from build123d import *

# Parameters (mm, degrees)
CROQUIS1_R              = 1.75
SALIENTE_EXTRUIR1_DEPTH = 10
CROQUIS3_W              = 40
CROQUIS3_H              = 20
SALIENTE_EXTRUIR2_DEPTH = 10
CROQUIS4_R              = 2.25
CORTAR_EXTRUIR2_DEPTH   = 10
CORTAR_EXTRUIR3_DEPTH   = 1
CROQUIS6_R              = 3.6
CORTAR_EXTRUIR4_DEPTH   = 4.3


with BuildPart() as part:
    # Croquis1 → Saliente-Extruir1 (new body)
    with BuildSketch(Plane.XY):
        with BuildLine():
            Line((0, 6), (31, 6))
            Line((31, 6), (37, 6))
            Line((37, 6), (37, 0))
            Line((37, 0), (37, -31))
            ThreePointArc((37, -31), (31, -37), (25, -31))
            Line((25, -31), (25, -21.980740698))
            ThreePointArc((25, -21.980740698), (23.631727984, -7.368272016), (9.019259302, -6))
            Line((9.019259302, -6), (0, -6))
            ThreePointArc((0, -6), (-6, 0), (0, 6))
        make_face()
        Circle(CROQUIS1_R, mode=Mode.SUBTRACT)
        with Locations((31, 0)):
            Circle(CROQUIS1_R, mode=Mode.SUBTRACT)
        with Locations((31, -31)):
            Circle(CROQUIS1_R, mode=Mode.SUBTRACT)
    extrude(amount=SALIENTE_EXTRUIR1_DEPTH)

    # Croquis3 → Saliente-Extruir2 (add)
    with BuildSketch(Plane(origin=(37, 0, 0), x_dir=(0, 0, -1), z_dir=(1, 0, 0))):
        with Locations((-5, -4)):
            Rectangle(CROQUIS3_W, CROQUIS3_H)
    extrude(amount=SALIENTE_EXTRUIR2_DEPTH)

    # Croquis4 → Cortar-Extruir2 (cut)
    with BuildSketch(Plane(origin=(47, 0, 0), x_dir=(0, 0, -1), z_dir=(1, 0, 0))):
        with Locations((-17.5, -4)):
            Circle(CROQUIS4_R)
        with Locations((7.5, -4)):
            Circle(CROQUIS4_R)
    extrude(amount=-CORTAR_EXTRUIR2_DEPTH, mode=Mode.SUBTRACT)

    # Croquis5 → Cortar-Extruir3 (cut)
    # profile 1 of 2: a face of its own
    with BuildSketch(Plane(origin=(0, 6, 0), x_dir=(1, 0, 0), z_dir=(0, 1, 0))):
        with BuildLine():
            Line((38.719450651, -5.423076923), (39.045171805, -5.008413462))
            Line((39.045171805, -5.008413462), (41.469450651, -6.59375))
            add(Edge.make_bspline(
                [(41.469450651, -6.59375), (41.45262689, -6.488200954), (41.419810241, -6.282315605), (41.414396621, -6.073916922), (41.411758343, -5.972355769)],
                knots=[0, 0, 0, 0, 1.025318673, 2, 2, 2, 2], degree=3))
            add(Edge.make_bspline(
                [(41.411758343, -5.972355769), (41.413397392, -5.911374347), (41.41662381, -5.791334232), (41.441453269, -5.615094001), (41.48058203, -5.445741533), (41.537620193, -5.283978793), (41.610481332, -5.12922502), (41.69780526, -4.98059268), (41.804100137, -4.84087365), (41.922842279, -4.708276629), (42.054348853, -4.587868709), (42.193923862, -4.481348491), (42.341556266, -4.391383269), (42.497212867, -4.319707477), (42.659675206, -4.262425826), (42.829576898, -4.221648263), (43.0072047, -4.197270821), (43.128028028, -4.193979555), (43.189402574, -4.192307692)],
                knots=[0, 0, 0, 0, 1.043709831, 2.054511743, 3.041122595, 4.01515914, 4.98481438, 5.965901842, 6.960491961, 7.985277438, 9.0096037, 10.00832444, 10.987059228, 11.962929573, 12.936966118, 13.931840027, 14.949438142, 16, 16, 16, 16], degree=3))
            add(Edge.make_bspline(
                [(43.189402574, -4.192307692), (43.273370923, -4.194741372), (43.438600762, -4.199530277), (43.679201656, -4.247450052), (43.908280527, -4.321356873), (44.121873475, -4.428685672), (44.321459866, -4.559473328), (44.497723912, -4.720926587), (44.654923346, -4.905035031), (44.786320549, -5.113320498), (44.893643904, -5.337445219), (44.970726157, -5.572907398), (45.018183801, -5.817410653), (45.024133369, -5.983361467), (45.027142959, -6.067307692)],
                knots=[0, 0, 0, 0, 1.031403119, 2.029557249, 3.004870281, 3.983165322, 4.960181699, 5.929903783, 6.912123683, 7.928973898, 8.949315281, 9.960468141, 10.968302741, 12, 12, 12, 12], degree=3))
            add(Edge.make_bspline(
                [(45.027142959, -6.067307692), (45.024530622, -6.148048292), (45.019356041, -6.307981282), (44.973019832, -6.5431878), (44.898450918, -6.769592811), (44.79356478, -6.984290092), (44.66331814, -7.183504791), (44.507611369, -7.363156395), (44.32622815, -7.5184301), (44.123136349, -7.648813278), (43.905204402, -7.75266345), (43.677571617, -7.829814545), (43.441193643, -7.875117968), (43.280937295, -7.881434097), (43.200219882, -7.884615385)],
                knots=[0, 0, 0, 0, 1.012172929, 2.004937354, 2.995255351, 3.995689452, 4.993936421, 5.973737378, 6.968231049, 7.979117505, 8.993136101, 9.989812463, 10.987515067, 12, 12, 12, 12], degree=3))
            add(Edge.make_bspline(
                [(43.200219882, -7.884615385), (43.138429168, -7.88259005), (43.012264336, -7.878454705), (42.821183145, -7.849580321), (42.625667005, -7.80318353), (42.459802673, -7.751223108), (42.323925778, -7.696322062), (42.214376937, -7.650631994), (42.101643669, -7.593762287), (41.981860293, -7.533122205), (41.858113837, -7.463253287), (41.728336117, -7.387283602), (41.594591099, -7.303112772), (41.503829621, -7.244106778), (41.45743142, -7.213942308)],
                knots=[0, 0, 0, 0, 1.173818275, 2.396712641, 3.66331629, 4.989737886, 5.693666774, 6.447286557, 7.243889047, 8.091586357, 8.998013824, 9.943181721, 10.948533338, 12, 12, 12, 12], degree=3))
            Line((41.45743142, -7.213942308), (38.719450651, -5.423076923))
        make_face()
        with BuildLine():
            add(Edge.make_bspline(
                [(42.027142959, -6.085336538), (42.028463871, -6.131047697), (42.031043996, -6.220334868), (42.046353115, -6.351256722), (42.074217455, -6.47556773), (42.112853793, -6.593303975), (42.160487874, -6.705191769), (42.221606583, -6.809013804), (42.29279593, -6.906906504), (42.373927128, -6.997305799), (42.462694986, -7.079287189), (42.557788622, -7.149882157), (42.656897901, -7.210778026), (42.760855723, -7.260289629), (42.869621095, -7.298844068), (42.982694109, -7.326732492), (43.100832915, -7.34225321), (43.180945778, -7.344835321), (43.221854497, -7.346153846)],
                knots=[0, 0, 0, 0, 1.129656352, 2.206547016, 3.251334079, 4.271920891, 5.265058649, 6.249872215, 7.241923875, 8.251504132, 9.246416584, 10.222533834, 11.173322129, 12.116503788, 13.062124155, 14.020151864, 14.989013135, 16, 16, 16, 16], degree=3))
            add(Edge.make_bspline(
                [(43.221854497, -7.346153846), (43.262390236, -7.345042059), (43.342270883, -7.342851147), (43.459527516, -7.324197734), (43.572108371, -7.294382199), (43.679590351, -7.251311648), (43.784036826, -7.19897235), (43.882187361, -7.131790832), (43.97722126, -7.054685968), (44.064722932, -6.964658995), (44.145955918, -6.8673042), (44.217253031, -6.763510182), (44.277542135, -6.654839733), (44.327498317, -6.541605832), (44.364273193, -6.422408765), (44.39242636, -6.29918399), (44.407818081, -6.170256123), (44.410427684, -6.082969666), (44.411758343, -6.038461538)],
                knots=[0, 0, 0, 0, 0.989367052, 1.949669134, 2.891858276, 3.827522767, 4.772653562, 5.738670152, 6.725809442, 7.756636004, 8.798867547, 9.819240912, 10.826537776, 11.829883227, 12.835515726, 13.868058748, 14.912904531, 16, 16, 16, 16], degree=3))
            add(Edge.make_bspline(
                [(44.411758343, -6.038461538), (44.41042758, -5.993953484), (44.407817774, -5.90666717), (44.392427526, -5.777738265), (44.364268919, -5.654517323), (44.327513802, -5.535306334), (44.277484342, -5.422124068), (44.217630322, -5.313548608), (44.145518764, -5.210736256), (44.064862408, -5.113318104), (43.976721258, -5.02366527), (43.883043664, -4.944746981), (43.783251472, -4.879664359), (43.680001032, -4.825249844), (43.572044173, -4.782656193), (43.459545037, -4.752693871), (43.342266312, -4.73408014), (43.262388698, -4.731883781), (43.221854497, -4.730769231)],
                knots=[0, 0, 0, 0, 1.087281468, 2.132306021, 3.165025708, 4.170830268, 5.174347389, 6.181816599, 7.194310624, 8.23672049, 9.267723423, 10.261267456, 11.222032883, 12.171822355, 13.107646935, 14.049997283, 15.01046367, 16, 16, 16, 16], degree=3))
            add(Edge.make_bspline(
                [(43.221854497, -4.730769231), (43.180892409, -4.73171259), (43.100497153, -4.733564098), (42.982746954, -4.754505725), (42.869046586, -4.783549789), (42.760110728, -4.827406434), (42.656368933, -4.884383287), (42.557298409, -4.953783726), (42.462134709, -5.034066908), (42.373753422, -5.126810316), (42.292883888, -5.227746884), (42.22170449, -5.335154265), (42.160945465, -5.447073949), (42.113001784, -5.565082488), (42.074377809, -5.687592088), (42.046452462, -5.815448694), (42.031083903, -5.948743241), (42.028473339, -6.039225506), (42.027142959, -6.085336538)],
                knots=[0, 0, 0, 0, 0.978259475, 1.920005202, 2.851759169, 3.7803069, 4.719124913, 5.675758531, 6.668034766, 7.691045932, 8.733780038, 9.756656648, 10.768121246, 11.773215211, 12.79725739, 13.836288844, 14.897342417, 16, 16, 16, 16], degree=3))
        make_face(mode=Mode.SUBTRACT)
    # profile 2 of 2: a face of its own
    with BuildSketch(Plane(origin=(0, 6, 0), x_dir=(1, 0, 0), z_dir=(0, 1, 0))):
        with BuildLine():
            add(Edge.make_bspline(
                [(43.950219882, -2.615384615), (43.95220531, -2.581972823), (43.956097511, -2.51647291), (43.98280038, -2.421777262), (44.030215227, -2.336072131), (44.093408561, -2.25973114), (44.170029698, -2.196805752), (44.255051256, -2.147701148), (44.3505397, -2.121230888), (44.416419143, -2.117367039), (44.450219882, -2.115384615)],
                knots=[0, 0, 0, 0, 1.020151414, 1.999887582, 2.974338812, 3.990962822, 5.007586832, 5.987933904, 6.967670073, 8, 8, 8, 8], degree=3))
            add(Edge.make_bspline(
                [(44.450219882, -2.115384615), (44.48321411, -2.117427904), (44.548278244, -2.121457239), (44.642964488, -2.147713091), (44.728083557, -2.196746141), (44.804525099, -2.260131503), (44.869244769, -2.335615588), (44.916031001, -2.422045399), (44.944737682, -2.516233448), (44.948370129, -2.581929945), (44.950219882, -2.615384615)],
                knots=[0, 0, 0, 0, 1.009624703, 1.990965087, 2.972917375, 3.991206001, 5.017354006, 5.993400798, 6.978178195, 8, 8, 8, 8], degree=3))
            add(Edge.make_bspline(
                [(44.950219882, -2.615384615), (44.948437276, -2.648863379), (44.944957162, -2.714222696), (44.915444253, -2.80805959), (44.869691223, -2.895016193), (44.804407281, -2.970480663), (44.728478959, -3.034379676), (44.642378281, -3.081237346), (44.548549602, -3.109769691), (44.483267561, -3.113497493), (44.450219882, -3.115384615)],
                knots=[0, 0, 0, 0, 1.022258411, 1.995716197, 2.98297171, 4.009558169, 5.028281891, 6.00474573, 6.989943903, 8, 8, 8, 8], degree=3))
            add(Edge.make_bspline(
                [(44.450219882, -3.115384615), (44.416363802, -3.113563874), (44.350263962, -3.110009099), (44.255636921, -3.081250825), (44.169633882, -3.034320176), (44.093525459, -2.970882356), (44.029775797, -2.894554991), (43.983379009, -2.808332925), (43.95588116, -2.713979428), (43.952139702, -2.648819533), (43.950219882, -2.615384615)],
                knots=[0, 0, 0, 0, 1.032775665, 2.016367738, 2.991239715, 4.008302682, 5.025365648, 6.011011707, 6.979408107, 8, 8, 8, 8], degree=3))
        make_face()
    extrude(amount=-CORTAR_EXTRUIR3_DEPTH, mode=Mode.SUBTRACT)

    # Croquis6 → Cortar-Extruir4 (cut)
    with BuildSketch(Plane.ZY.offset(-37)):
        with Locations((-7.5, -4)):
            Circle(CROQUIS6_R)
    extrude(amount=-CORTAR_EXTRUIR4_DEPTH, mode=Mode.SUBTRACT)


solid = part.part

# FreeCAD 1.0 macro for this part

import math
import FreeCAD as App
import Part
import Sketcher


def add_polygon(sketch, points):
    """Adds a closed chain of lines whose ends are joined by coincident constraints."""
    first, n = sketch.GeometryCount, len(points)
    for a, b in zip(points, points[1:] + points[:1]):
        sketch.addGeometry(Part.LineSegment(App.Vector(*a, 0), App.Vector(*b, 0)), False)
    for i in range(n):
        sketch.addConstraint(Sketcher.Constraint("Coincident", first + i, 2, first + (i + 1) % n, 1))

doc = App.newDocument("Part")
body = doc.addObject("PartDesign::Body", "Body")

# Sketch on XY plane
sketch1 = body.newObject("Sketcher::SketchObject", "Sketch")
sketch1.AttachmentSupport = (doc.getObject("XY_Plane"), [""])
sketch1.MapMode = "FlatFace"
sketch1.addGeometry([
    Part.LineSegment(App.Vector(37, 6, 0), App.Vector(0, 6, 0)),  # 0
    Part.ArcOfCircle(Part.Circle(App.Vector(0, 0, 0), App.Vector(0, 0, 1), 6), math.radians(90), math.radians(270)),  # 1
    Part.LineSegment(App.Vector(0, -6, 0), App.Vector(9, -6, 0)),  # 2
    Part.ArcOfCircle(Part.Circle(App.Vector(15.5, -15.5, 0), App.Vector(0, 0, 1), 11.5), math.radians(-34), math.radians(124)),  # 3
    Part.LineSegment(App.Vector(25, -22, 0), App.Vector(25, -31, 0)),  # 4
    Part.ArcOfCircle(Part.Circle(App.Vector(31, -31, 0), App.Vector(0, 0, 1), 6), math.radians(180), math.radians(360)),  # 5
    Part.LineSegment(App.Vector(37, -31, 0), App.Vector(37, 6, 0)),  # 6
    Part.Circle(App.Vector(31, -31, 0), App.Vector(0, 0, 1), 1.8),  # 7
    Part.Circle(App.Vector(31, 0, 0), App.Vector(0, 0, 1), 1.8),  # 8
    Part.Circle(App.Vector(0, 0, 0), App.Vector(0, 0, 1), 1.8),  # 9
], False)
sketch1.addConstraint([
    Sketcher.Constraint("Tangent", 0, 2, 1, 1),
    Sketcher.Constraint("Tangent", 1, 2, 2, 1),
    Sketcher.Constraint("Coincident", 2, 2, 3, 2),
    Sketcher.Constraint("Coincident", 3, 1, 4, 1),
    Sketcher.Constraint("Tangent", 4, 2, 5, 1),
    Sketcher.Constraint("Tangent", 5, 2, 6, 1),
    Sketcher.Constraint("Coincident", 6, 2, 0, 1),
    Sketcher.Constraint("Horizontal", 0),
    Sketcher.Constraint("Horizontal", 2),
    Sketcher.Constraint("Vertical", 4),
    Sketcher.Constraint("Vertical", 6),
    Sketcher.Constraint("Coincident", 1, 3, -1, 1),
    Sketcher.Constraint("Coincident", 9, 3, -1, 1),
    Sketcher.Constraint("Coincident", 7, 3, 5, 3),
    Sketcher.Constraint("Equal", 1, 5),
    Sketcher.Constraint("Equal", 7, 8),
    Sketcher.Constraint("Equal", 8, 9),
    Sketcher.Constraint("PointOnObject", 8, 3, -1),
    Sketcher.Constraint("Vertical", 7, 3, 8, 3),
    Sketcher.Constraint("Equal", 2, 4),
    Sketcher.Constraint("Equal", 0, 6),
    Sketcher.Constraint("Radius", 1, 6.0),
    Sketcher.Constraint("Diameter", 7, 3.5),
    Sketcher.Constraint("Radius", 3, 11.5),
    Sketcher.Constraint("DistanceX", 0, 2, 0, 1, 37.0),
    Sketcher.Constraint("DistanceX", -1, 1, 3, 3, 15.5),
])
pad1 = body.newObject("PartDesign::Pad", "Pad")
pad1.Profile = sketch1
pad1.Length = 10

# Sketch on YZ plane
sketch2 = body.newObject("Sketcher::SketchObject", "Sketch001")
sketch2.AttachmentSupport = (doc.getObject("YZ_Plane"), [""])
sketch2.MapMode = "FlatFace"
sketch2.AttachmentOffset = App.Placement(App.Vector(0, 0, 37), App.Rotation())
add_polygon(sketch2, [(6, 25), (-14, 25), (-14, -15), (6, -15)])  # lines 0-3
sketch2.addConstraint([
    Sketcher.Constraint("Horizontal", 0),
    Sketcher.Constraint("Vertical", 1),
    Sketcher.Constraint("Horizontal", 2),
    Sketcher.Constraint("Vertical", 3),
    Sketcher.Constraint("DistanceX", 0, 2, 0, 1, 20.0),
    Sketcher.Constraint("DistanceY", 1, 2, 1, 1, 40.0),
    Sketcher.Constraint("DistanceX", 0, 2, -1, 1, 14.0),
    Sketcher.Constraint("DistanceY", -1, 1, 0, 2, 25.0),
])
pad2 = body.newObject("PartDesign::Pad", "Pad001")
pad2.Profile = sketch2
pad2.Length = 10

# Sketch on YZ plane
sketch3 = body.newObject("Sketcher::SketchObject", "Sketch002")
sketch3.AttachmentSupport = (doc.getObject("YZ_Plane"), [""])
sketch3.MapMode = "FlatFace"
sketch3.AttachmentOffset = App.Placement(App.Vector(0, 0, 47), App.Rotation())
sketch3.addGeometry([
    Part.Circle(App.Vector(-4, 17.5, 0), App.Vector(0, 0, 1), 2.2),
    Part.Circle(App.Vector(-4, -7.5, 0), App.Vector(0, 0, 1), 2.2),
], False)
sketch3.addConstraint([
    Sketcher.Constraint("Equal", 0, 1),
    Sketcher.Constraint("Vertical", 0, 3, 1, 3),
    Sketcher.Constraint("Diameter", 0, 4.5),
    Sketcher.Constraint("DistanceX", 0, 3, -1, 1, 4.0),
    Sketcher.Constraint("DistanceY", 1, 3, 0, 3, 25.0),
    Sketcher.Constraint("DistanceY", -1, 1, 0, 3, 17.5),
])
pocket1 = body.newObject("PartDesign::Pocket", "Pocket")
pocket1.Profile = sketch3
pocket1.Length = 10

# Sketch on XZ plane
sketch4 = body.newObject("Sketcher::SketchObject", "Sketch003")
sketch4.AttachmentSupport = (doc.getObject("XZ_Plane"), [""])
sketch4.MapMode = "FlatFace"
sketch4.AttachmentOffset = App.Placement(App.Vector(0, 0, -6), App.Rotation())
sketch4.addGeometry([
    Part.LineSegment(App.Vector(39.045172, 5.008413, 0), App.Vector(38.719451, 5.423077, 0)),  # 0
    Part.LineSegment(App.Vector(38.719451, 5.423077, 0), App.Vector(41.457431, 7.213942, 0)),  # 1
    Part.BSplineCurve([App.Vector(43.20022, 7.884615, 0), App.Vector(43.138429, 7.88259, 0), App.Vector(43.012264, 7.878455, 0), App.Vector(42.821183, 7.84958, 0), App.Vector(42.625667, 7.803184, 0), App.Vector(42.459803, 7.751223, 0), App.Vector(42.323926, 7.696322, 0), App.Vector(42.214377, 7.650632, 0), App.Vector(42.101644, 7.593762, 0), App.Vector(41.98186, 7.533122, 0), App.Vector(41.858114, 7.463253, 0), App.Vector(41.728336, 7.387284, 0), App.Vector(41.594591, 7.303113, 0), App.Vector(41.50383, 7.244107, 0), App.Vector(41.457431, 7.213942, 0)], [4, 1, 1, 1, 1, 1, 1, 1, 1, 1, 1, 1, 4], [0, 1.173818275, 2.396712641, 3.66331629, 4.989737886, 5.693666774, 6.447286557, 7.243889047, 8.091586357, 8.998013824, 9.943181721, 10.948533338, 12], False, 3, [1, 1, 1, 1, 1, 1, 1, 1, 1, 1, 1, 1, 1, 1, 1], False),  # 2
    Part.BSplineCurve([App.Vector(45.027143, 6.067308, 0), App.Vector(45.024531, 6.148048, 0), App.Vector(45.019356, 6.307981, 0), App.Vector(44.97302, 6.543188, 0), App.Vector(44.898451, 6.769593, 0), App.Vector(44.793565, 6.98429, 0), App.Vector(44.663318, 7.183505, 0), App.Vector(44.507611, 7.363156, 0), App.Vector(44.326228, 7.51843, 0), App.Vector(44.123136, 7.648813, 0), App.Vector(43.905204, 7.752663, 0), App.Vector(43.677572, 7.829815, 0), App.Vector(43.441194, 7.875118, 0), App.Vector(43.280937, 7.881434, 0), App.Vector(43.20022, 7.884615, 0)], [4, 1, 1, 1, 1, 1, 1, 1, 1, 1, 1, 1, 4], [0, 1.012172929, 2.004937354, 2.995255351, 3.995689452, 4.993936421, 5.973737378, 6.968231049, 7.979117505, 8.993136101, 9.989812463, 10.987515067, 12], False, 3, [1, 1, 1, 1, 1, 1, 1, 1, 1, 1, 1, 1, 1, 1, 1], False),  # 3
    Part.BSplineCurve([App.Vector(43.189403, 4.192308, 0), App.Vector(43.273371, 4.194741, 0), App.Vector(43.438601, 4.19953, 0), App.Vector(43.679202, 4.24745, 0), App.Vector(43.908281, 4.321357, 0), App.Vector(44.121873, 4.428686, 0), App.Vector(44.32146, 4.559473, 0), App.Vector(44.497724, 4.720927, 0), App.Vector(44.654923, 4.905035, 0), App.Vector(44.786321, 5.11332, 0), App.Vector(44.893644, 5.337445, 0), App.Vector(44.970726, 5.572907, 0), App.Vector(45.018184, 5.817411, 0), App.Vector(45.024133, 5.983361, 0), App.Vector(45.027143, 6.067308, 0)], [4, 1, 1, 1, 1, 1, 1, 1, 1, 1, 1, 1, 4], [0, 1.031403119, 2.029557249, 3.004870281, 3.983165322, 4.960181699, 5.929903783, 6.912123683, 7.928973898, 8.949315281, 9.960468141, 10.968302741, 12], False, 3, [1, 1, 1, 1, 1, 1, 1, 1, 1, 1, 1, 1, 1, 1, 1], False),  # 4
    Part.BSplineCurve([App.Vector(41.411758, 5.972356, 0), App.Vector(41.413397, 5.911374, 0), App.Vector(41.416624, 5.791334, 0), App.Vector(41.441453, 5.615094, 0), App.Vector(41.480582, 5.445742, 0), App.Vector(41.53762, 5.283979, 0), App.Vector(41.610481, 5.129225, 0), App.Vector(41.697805, 4.980593, 0), App.Vector(41.8041, 4.840874, 0), App.Vector(41.922842, 4.708277, 0), App.Vector(42.054349, 4.587869, 0), App.Vector(42.193924, 4.481348, 0), App.Vector(42.341556, 4.391383, 0), App.Vector(42.497213, 4.319707, 0), App.Vector(42.659675, 4.262426, 0), App.Vector(42.829577, 4.221648, 0), App.Vector(43.007205, 4.197271, 0), App.Vector(43.128028, 4.19398, 0), App.Vector(43.189403, 4.192308, 0)], [4, 1, 1, 1, 1, 1, 1, 1, 1, 1, 1, 1, 1, 1, 1, 1, 4], [0, 1.043709831, 2.054511743, 3.041122595, 4.01515914, 4.98481438, 5.965901842, 6.960491961, 7.985277438, 9.0096037, 10.00832444, 10.987059228, 11.962929573, 12.936966118, 13.931840027, 14.949438142, 16], False, 3, [1, 1, 1, 1, 1, 1, 1, 1, 1, 1, 1, 1, 1, 1, 1, 1, 1, 1, 1], False),  # 5
    Part.BSplineCurve([App.Vector(41.469451, 6.59375, 0), App.Vector(41.452627, 6.488201, 0), App.Vector(41.41981, 6.282316, 0), App.Vector(41.414397, 6.073917, 0), App.Vector(41.411758, 5.972356, 0)], [4, 1, 4], [0, 1.025318673, 2], False, 3, [1, 1, 1, 1, 1], False),  # 6
    Part.LineSegment(App.Vector(41.469451, 6.59375, 0), App.Vector(39.045172, 5.008413, 0)),  # 7
    Part.BSplineCurve([App.Vector(43.221854, 4.730769, 0), App.Vector(43.180892, 4.731713, 0), App.Vector(43.100497, 4.733564, 0), App.Vector(42.982747, 4.754506, 0), App.Vector(42.869047, 4.78355, 0), App.Vector(42.760111, 4.827406, 0), App.Vector(42.656369, 4.884383, 0), App.Vector(42.557298, 4.953784, 0), App.Vector(42.462135, 5.034067, 0), App.Vector(42.373753, 5.12681, 0), App.Vector(42.292884, 5.227747, 0), App.Vector(42.221704, 5.335154, 0), App.Vector(42.160945, 5.447074, 0), App.Vector(42.113002, 5.565082, 0), App.Vector(42.074378, 5.687592, 0), App.Vector(42.046452, 5.815449, 0), App.Vector(42.031084, 5.948743, 0), App.Vector(42.028473, 6.039226, 0), App.Vector(42.027143, 6.085337, 0)], [4, 1, 1, 1, 1, 1, 1, 1, 1, 1, 1, 1, 1, 1, 1, 1, 4], [0, 0.978259475, 1.920005202, 2.851759169, 3.7803069, 4.719124913, 5.675758531, 6.668034766, 7.691045932, 8.733780038, 9.756656648, 10.768121246, 11.773215211, 12.79725739, 13.836288844, 14.897342417, 16], False, 3, [1, 1, 1, 1, 1, 1, 1, 1, 1, 1, 1, 1, 1, 1, 1, 1, 1, 1, 1], False),  # 8
    Part.BSplineCurve([App.Vector(44.411758, 6.038462, 0), App.Vector(44.410428, 5.993953, 0), App.Vector(44.407818, 5.906667, 0), App.Vector(44.392428, 5.777738, 0), App.Vector(44.364269, 5.654517, 0), App.Vector(44.327514, 5.535306, 0), App.Vector(44.277484, 5.422124, 0), App.Vector(44.21763, 5.313549, 0), App.Vector(44.145519, 5.210736, 0), App.Vector(44.064862, 5.113318, 0), App.Vector(43.976721, 5.023665, 0), App.Vector(43.883044, 4.944747, 0), App.Vector(43.783251, 4.879664, 0), App.Vector(43.680001, 4.82525, 0), App.Vector(43.572044, 4.782656, 0), App.Vector(43.459545, 4.752694, 0), App.Vector(43.342266, 4.73408, 0), App.Vector(43.262389, 4.731884, 0), App.Vector(43.221854, 4.730769, 0)], [4, 1, 1, 1, 1, 1, 1, 1, 1, 1, 1, 1, 1, 1, 1, 1, 4], [0, 1.087281468, 2.132306021, 3.165025708, 4.170830268, 5.174347389, 6.181816599, 7.194310624, 8.23672049, 9.267723423, 10.261267456, 11.222032883, 12.171822355, 13.107646935, 14.049997283, 15.01046367, 16], False, 3, [1, 1, 1, 1, 1, 1, 1, 1, 1, 1, 1, 1, 1, 1, 1, 1, 1, 1, 1], False),  # 9
    Part.BSplineCurve([App.Vector(43.221854, 7.346154, 0), App.Vector(43.26239, 7.345042, 0), App.Vector(43.342271, 7.342851, 0), App.Vector(43.459528, 7.324198, 0), App.Vector(43.572108, 7.294382, 0), App.Vector(43.67959, 7.251312, 0), App.Vector(43.784037, 7.198972, 0), App.Vector(43.882187, 7.131791, 0), App.Vector(43.977221, 7.054686, 0), App.Vector(44.064723, 6.964659, 0), App.Vector(44.145956, 6.867304, 0), App.Vector(44.217253, 6.76351, 0), App.Vector(44.277542, 6.65484, 0), App.Vector(44.327498, 6.541606, 0), App.Vector(44.364273, 6.422409, 0), App.Vector(44.392426, 6.299184, 0), App.Vector(44.407818, 6.170256, 0), App.Vector(44.410428, 6.08297, 0), App.Vector(44.411758, 6.038462, 0)], [4, 1, 1, 1, 1, 1, 1, 1, 1, 1, 1, 1, 1, 1, 1, 1, 4], [0, 0.989367052, 1.949669134, 2.891858276, 3.827522767, 4.772653562, 5.738670152, 6.725809442, 7.756636004, 8.798867547, 9.819240912, 10.826537776, 11.829883227, 12.835515726, 13.868058748, 14.912904531, 16], False, 3, [1, 1, 1, 1, 1, 1, 1, 1, 1, 1, 1, 1, 1, 1, 1, 1, 1, 1, 1], False),  # 10
    Part.BSplineCurve([App.Vector(42.027143, 6.085337, 0), App.Vector(42.028464, 6.131048, 0), App.Vector(42.031044, 6.220335, 0), App.Vector(42.046353, 6.351257, 0), App.Vector(42.074217, 6.475568, 0), App.Vector(42.112854, 6.593304, 0), App.Vector(42.160488, 6.705192, 0), App.Vector(42.221607, 6.809014, 0), App.Vector(42.292796, 6.906907, 0), App.Vector(42.373927, 6.997306, 0), App.Vector(42.462695, 7.079287, 0), App.Vector(42.557789, 7.149882, 0), App.Vector(42.656898, 7.210778, 0), App.Vector(42.760856, 7.26029, 0), App.Vector(42.869621, 7.298844, 0), App.Vector(42.982694, 7.326732, 0), App.Vector(43.100833, 7.342253, 0), App.Vector(43.180946, 7.344835, 0), App.Vector(43.221854, 7.346154, 0)], [4, 1, 1, 1, 1, 1, 1, 1, 1, 1, 1, 1, 1, 1, 1, 1, 4], [0, 1.129656352, 2.206547016, 3.251334079, 4.271920891, 5.265058649, 6.249872215, 7.241923875, 8.251504132, 9.246416584, 10.222533834, 11.173322129, 12.116503788, 13.062124155, 14.020151864, 14.989013135, 16], False, 3, [1, 1, 1, 1, 1, 1, 1, 1, 1, 1, 1, 1, 1, 1, 1, 1, 1, 1, 1], False),  # 11
    Part.BSplineCurve([App.Vector(43.95022, 2.615385, 0), App.Vector(43.952205, 2.581973, 0), App.Vector(43.956098, 2.516473, 0), App.Vector(43.9828, 2.421777, 0), App.Vector(44.030215, 2.336072, 0), App.Vector(44.093409, 2.259731, 0), App.Vector(44.17003, 2.196806, 0), App.Vector(44.255051, 2.147701, 0), App.Vector(44.35054, 2.121231, 0), App.Vector(44.416419, 2.117367, 0), App.Vector(44.45022, 2.115385, 0)], [4, 1, 1, 1, 1, 1, 1, 1, 4], [0, 1.020151414, 1.999887582, 2.974338812, 3.990962822, 5.007586832, 5.987933904, 6.967670073, 8], False, 3, [1, 1, 1, 1, 1, 1, 1, 1, 1, 1, 1], False),  # 12
    Part.BSplineCurve([App.Vector(44.45022, 3.115385, 0), App.Vector(44.416364, 3.113564, 0), App.Vector(44.350264, 3.110009, 0), App.Vector(44.255637, 3.081251, 0), App.Vector(44.169634, 3.03432, 0), App.Vector(44.093525, 2.970882, 0), App.Vector(44.029776, 2.894555, 0), App.Vector(43.983379, 2.808333, 0), App.Vector(43.955881, 2.713979, 0), App.Vector(43.95214, 2.64882, 0), App.Vector(43.95022, 2.615385, 0)], [4, 1, 1, 1, 1, 1, 1, 1, 4], [0, 1.032775665, 2.016367738, 2.991239715, 4.008302682, 5.025365648, 6.011011707, 6.979408107, 8], False, 3, [1, 1, 1, 1, 1, 1, 1, 1, 1, 1, 1], False),  # 13
    Part.BSplineCurve([App.Vector(44.95022, 2.615385, 0), App.Vector(44.948437, 2.648863, 0), App.Vector(44.944957, 2.714223, 0), App.Vector(44.915444, 2.80806, 0), App.Vector(44.869691, 2.895016, 0), App.Vector(44.804407, 2.970481, 0), App.Vector(44.728479, 3.03438, 0), App.Vector(44.642378, 3.081237, 0), App.Vector(44.54855, 3.10977, 0), App.Vector(44.483268, 3.113497, 0), App.Vector(44.45022, 3.115385, 0)], [4, 1, 1, 1, 1, 1, 1, 1, 4], [0, 1.022258411, 1.995716197, 2.98297171, 4.009558169, 5.028281891, 6.00474573, 6.989943903, 8], False, 3, [1, 1, 1, 1, 1, 1, 1, 1, 1, 1, 1], False),  # 14
    Part.BSplineCurve([App.Vector(44.45022, 2.115385, 0), App.Vector(44.483214, 2.117428, 0), App.Vector(44.548278, 2.121457, 0), App.Vector(44.642964, 2.147713, 0), App.Vector(44.728084, 2.196746, 0), App.Vector(44.804525, 2.260132, 0), App.Vector(44.869245, 2.335616, 0), App.Vector(44.916031, 2.422045, 0), App.Vector(44.944738, 2.516233, 0), App.Vector(44.94837, 2.58193, 0), App.Vector(44.95022, 2.615385, 0)], [4, 1, 1, 1, 1, 1, 1, 1, 4], [0, 1.009624703, 1.990965087, 2.972917375, 3.991206001, 5.017354006, 5.993400798, 6.978178195, 8], False, 3, [1, 1, 1, 1, 1, 1, 1, 1, 1, 1, 1], False),  # 15
], False)
sketch4.addConstraint([
    Sketcher.Constraint("Block", 2),
    Sketcher.Constraint("Block", 3),
    Sketcher.Constraint("Block", 4),
    Sketcher.Constraint("Block", 5),
    Sketcher.Constraint("Block", 6),
    Sketcher.Constraint("Block", 8),
    Sketcher.Constraint("Block", 9),
    Sketcher.Constraint("Block", 10),
    Sketcher.Constraint("Block", 11),
    Sketcher.Constraint("Block", 12),
    Sketcher.Constraint("Block", 13),
    Sketcher.Constraint("Block", 14),
    Sketcher.Constraint("Block", 15),
    Sketcher.Constraint("Coincident", 0, 2, 1, 1),
    Sketcher.Constraint("Coincident", 1, 2, 2, 2),
    Sketcher.Constraint("Coincident", 6, 1, 7, 1),
    Sketcher.Constraint("Coincident", 7, 2, 0, 1),
    Sketcher.Constraint("DistanceX", -1, 1, 0, 2, 38.719451),
    Sketcher.Constraint("DistanceX", -1, 1, 7, 2, 39.045172),
    Sketcher.Constraint("DistanceY", 7, 2, 1, 2, 2.205529),
    Sketcher.Constraint("Distance", 0, 0.527295),
])
pocket2 = body.newObject("PartDesign::Pocket", "Pocket001")
pocket2.Profile = sketch4
pocket2.Length = 1
pocket2.Reversed = True

# Sketch on YZ plane
sketch5 = body.newObject("Sketcher::SketchObject", "Sketch004")
sketch5.AttachmentSupport = (doc.getObject("YZ_Plane"), [""])
sketch5.MapMode = "FlatFace"
sketch5.AttachmentOffset = App.Placement(App.Vector(0, 0, 37), App.Rotation())
sketch5.addGeometry(Part.Circle(App.Vector(-4, -7.5, 0), App.Vector(0, 0, 1), 3.6), False)
sketch5.addConstraint([
    Sketcher.Constraint("Diameter", 0, 7.2),
    Sketcher.Constraint("DistanceX", 0, 3, -1, 1, 4.0),
    Sketcher.Constraint("DistanceY", 0, 3, -1, 1, 7.5),
])
pocket3 = body.newObject("PartDesign::Pocket", "Pocket002")
pocket3.Profile = sketch5
pocket3.Length = 4.3
pocket3.Reversed = True

doc.recompute()
